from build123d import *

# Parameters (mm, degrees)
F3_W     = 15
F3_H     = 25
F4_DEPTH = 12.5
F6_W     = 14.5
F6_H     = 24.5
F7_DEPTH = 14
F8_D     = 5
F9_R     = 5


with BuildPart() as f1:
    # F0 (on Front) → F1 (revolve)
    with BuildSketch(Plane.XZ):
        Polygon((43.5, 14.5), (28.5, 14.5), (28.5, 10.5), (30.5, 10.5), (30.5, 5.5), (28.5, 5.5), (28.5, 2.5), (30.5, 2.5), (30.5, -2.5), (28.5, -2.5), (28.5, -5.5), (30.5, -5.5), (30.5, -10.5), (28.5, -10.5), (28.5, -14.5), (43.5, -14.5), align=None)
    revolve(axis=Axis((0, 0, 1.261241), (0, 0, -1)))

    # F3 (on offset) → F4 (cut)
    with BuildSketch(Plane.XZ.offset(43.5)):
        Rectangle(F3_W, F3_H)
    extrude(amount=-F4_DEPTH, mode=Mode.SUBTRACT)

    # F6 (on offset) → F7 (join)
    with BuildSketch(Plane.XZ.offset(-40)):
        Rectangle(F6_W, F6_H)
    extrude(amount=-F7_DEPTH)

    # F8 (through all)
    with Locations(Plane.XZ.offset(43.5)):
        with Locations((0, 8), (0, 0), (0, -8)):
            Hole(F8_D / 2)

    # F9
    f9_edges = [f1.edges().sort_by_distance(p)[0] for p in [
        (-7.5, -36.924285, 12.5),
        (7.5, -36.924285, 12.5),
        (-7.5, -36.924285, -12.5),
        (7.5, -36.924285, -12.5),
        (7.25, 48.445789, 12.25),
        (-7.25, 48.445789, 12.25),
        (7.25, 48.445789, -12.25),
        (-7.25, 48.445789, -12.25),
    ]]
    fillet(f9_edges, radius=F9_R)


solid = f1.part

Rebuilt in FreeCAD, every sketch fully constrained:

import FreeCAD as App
import Part
import Sketcher

V = App.Vector


def edges_at(feature, points):
    """Names of the edges that pass closest to the given points."""
    edges = feature.Shape.Edges
    near = lambda p: min(range(len(edges)), key=lambda i: edges[i].distToShape(Part.Vertex(*p))[0])
    return sorted({f"Edge{near(p) + 1}" for p in points})

doc = App.newDocument("Part")
body = doc.addObject("PartDesign::Body", "Body")

# Sketch on XZ plane
sketch1 = doc.addObject("Sketcher::SketchObject", "Sketch")
body.addObject(sketch1)
sketch1.AttachmentSupport = (doc.XZ_Plane, [""])
sketch1.MapMode = "FlatFace"
sketch1.addGeometry([
    Part.LineSegment(V(43.5, 14.5, 0), V(28.5, 14.5, 0)),  # 0
    Part.LineSegment(V(28.5, 14.5, 0), V(28.5, 10.5, 0)),  # 1
    Part.LineSegment(V(28.5, 10.5, 0), V(30.5, 10.5, 0)),  # 2
    Part.LineSegment(V(30.5, 10.5, 0), V(30.5, 5.5, 0)),  # 3
    Part.LineSegment(V(30.5, 5.5, 0), V(28.5, 5.5, 0)),  # 4
    Part.LineSegment(V(28.5, 5.5, 0), V(28.5, 2.5, 0)),  # 5
    Part.LineSegment(V(28.5, 2.5, 0), V(30.5, 2.5, 0)),  # 6
    Part.LineSegment(V(30.5, 2.5, 0), V(30.5, -2.5, 0)),  # 7
    Part.LineSegment(V(30.5, -2.5, 0), V(28.5, -2.5, 0)),  # 8
    Part.LineSegment(V(28.5, -2.5, 0), V(28.5, -5.5, 0)),  # 9
    Part.LineSegment(V(28.5, -5.5, 0), V(30.5, -5.5, 0)),  # 10
    Part.LineSegment(V(30.5, -5.5, 0), V(30.5, -10.5, 0)),  # 11
    Part.LineSegment(V(30.5, -10.5, 0), V(28.5, -10.5, 0)),  # 12
    Part.LineSegment(V(28.5, -10.5, 0), V(28.5, -14.5, 0)),  # 13
    Part.LineSegment(V(28.5, -14.5, 0), V(43.5, -14.5, 0)),  # 14
    Part.LineSegment(V(43.5, -14.5, 0), V(43.5, 14.5, 0)),  # 15
], False)
sketch1.addConstraint([
    Sketcher.Constraint("Coincident", 0, 2, 1, 1),
    Sketcher.Constraint("Coincident", 1, 2, 2, 1),
    Sketcher.Constraint("Coincident", 2, 2, 3, 1),
    Sketcher.Constraint("Coincident", 3, 2, 4, 1),
    Sketcher.Constraint("Coincident", 4, 2, 5, 1),
    Sketcher.Constraint("Coincident", 5, 2, 6, 1),
    Sketcher.Constraint("Coincident", 6, 2, 7, 1),
    Sketcher.Constraint("Coincident", 7, 2, 8, 1),
    Sketcher.Constraint("Coincident", 8, 2, 9, 1),
    Sketcher.Constraint("Coincident", 9, 2, 10, 1),
    Sketcher.Constraint("Coincident", 10, 2, 11, 1),
    Sketcher.Constraint("Coincident", 11, 2, 12, 1),
    Sketcher.Constraint("Coincident", 12, 2, 13, 1),
    Sketcher.Constraint("Coincident", 13, 2, 14, 1),
    Sketcher.Constraint("Coincident", 14, 2, 15, 1),
    Sketcher.Constraint("Coincident", 15, 2, 0, 1),
    Sketcher.Constraint("Horizontal", 0),
    Sketcher.Constraint("Vertical", 1),
    Sketcher.Constraint("Horizontal", 2),
    Sketcher.Constraint("Vertical", 3),
    Sketcher.Constraint("Horizontal", 4),
    Sketcher.Constraint("Vertical", 5),
    Sketcher.Constraint("Horizontal", 6),
    Sketcher.Constraint("Vertical", 7),
    Sketcher.Constraint("Horizontal", 8),
    Sketcher.Constraint("Vertical", 9),
    Sketcher.Constraint("Horizontal", 10),
    Sketcher.Constraint("Vertical", 11),
    Sketcher.Constraint("Horizontal", 12),
    Sketcher.Constraint("Vertical", 13),
    Sketcher.Constraint("Horizontal", 14),
    Sketcher.Constraint("Vertical", 15),
    Sketcher.Constraint("Symmetric", 5, 2, 8, 2, -1),
    Sketcher.Constraint("Symmetric", 3, 2, 10, 2, -1),
    Sketcher.Constraint("Symmetric", 1, 2, 12, 2, -1),
    Sketcher.Constraint("Vertical", 1, 2, 4, 2),
    Sketcher.Constraint("Vertical", 3, 2, 6, 2),
    Sketcher.Constraint("Equal", 3, 7),
    Sketcher.Constraint("Equal", 1, 13),
    Sketcher.Constraint("DistanceX", 0, 2, 0, 1, 15.0),
    Sketcher.Constraint("DistanceX", 2, 1, 2, 2, 2.0),
    Sketcher.Constraint("DistanceY", 1, 2, 1, 1, 4.0),
    Sketcher.Constraint("DistanceY", 3, 2, 3, 1, 5.0),
    Sketcher.Constraint("DistanceY", 5, 2, 5, 1, 3.0),
    Sketcher.Constraint("DistanceX", -1, 1, 0, 2, 28.5),
])
revolution = doc.addObject("PartDesign::Revolution", "Revolution")
body.addObject(revolution)
revolution.Profile = sketch1
revolution.ReferenceAxis = (sketch1, ["V_Axis"])
revolution.Angle = 360

# Sketch on XZ plane
sketch2 = doc.addObject("Sketcher::SketchObject", "Sketch001")
body.addObject(sketch2)
sketch2.AttachmentSupport = (doc.XZ_Plane, [""])
sketch2.MapMode = "FlatFace"
sketch2.AttachmentOffset = App.Placement(V(0, 0, 43.5), App.Rotation())
sketch2.addGeometry([
    Part.LineSegment(V(-8, 12, 0), V(-8, -12, 0)),
    Part.LineSegment(V(-8, -12, 0), V(8, -12, 0)),
    Part.LineSegment(V(8, -12, 0), V(8, 12, 0)),
    Part.LineSegment(V(8, 12, 0), V(-8, 12, 0)),
], False)
sketch2.addConstraint([
    Sketcher.Constraint("Coincident", 0, 2, 1, 1),
    Sketcher.Constraint("Coincident", 1, 2, 2, 1),
    Sketcher.Constraint("Coincident", 2, 2, 3, 1),
    Sketcher.Constraint("Coincident", 3, 2, 0, 1),
    Sketcher.Constraint("Vertical", 0),
    Sketcher.Constraint("Horizontal", 1),
    Sketcher.Constraint("Vertical", 2),
    Sketcher.Constraint("Horizontal", 3),
    Sketcher.Constraint("Symmetric", 0, 2, 2, 2, -1, 1),
    Sketcher.Constraint("DistanceX", 1, 1, 1, 2, 15.0),
    Sketcher.Constraint("DistanceY", 0, 2, 0, 1, 25.0),
])
pocket1 = doc.addObject("PartDesign::Pocket", "Pocket")
body.addObject(pocket1)
pocket1.Profile = sketch2
pocket1.Length = 12.5

# Sketch on XZ plane
sketch3 = doc.addObject("Sketcher::SketchObject", "Sketch002")
body.addObject(sketch3)
sketch3.AttachmentSupport = (doc.XZ_Plane, [""])
sketch3.MapMode = "FlatFace"
sketch3.AttachmentOffset = App.Placement(V(0, 0, -40), App.Rotation())
sketch3.addGeometry([
    Part.LineSegment(V(-7, 12, 0), V(-7, -12, 0)),
    Part.LineSegment(V(-7, -12, 0), V(7, -12, 0)),
    Part.LineSegment(V(7, -12, 0), V(7, 12, 0)),
    Part.LineSegment(V(7, 12, 0), V(-7, 12, 0)),
], False)
sketch3.addConstraint([
    Sketcher.Constraint("Coincident", 0, 2, 1, 1),
    Sketcher.Constraint("Coincident", 1, 2, 2, 1),
    Sketcher.Constraint("Coincident", 2, 2, 3, 1),
    Sketcher.Constraint("Coincident", 3, 2, 0, 1),
    Sketcher.Constraint("Vertical", 0),
    Sketcher.Constraint("Horizontal", 1),
    Sketcher.Constraint("Vertical", 2),
    Sketcher.Constraint("Horizontal", 3),
    Sketcher.Constraint("Symmetric", 0, 2, 2, 2, -1, 1),
    Sketcher.Constraint("DistanceX", 1, 1, 1, 2, 14.5),
    Sketcher.Constraint("DistanceY", 0, 2, 0, 1, 24.5),
])
pad1 = doc.addObject("PartDesign::Pad", "Pad")
body.addObject(pad1)
pad1.Profile = sketch3
pad1.Length = 14
pad1.Reversed = True

# Sketch on XZ plane
sketch4 = doc.addObject("Sketcher::SketchObject", "Sketch003")
body.addObject(sketch4)
sketch4.AttachmentSupport = (doc.XZ_Plane, [""])
sketch4.MapMode = "FlatFace"
sketch4.AttachmentOffset = App.Placement(V(0, 0, 43.5), App.Rotation())
sketch4.addGeometry([
    Part.Circle(V(0, 8, 0), V(0, 0, 1), 2.5),
    Part.Circle(V(0, 0, 0), V(0, 0, 1), 2.5),
    Part.Circle(V(0, -8, 0), V(0, 0, 1), 2.5),
], False)
sketch4.addConstraint([
    Sketcher.Constraint("Coincident", 1, 3, -1, 1),
    Sketcher.Constraint("Equal", 0, 1),
    Sketcher.Constraint("Equal", 1, 2),
    Sketcher.Constraint("Symmetric", 0, 3, 2, 3, -1, 1),
    Sketcher.Constraint("PointOnObject", 0, 3, -2),
    Sketcher.Constraint("Diameter", 0, 5.0),
    Sketcher.Constraint("DistanceY", -1, 1, 0, 3, 8.0),
])
doc.recompute()
hole = doc.addObject("PartDesign::Hole", "Hole")
body.addObject(hole)
hole.Profile = sketch4
hole.ThreadType = "None"
hole.Diameter = 5
hole.DepthType = "ThroughAll"
doc.recompute()

fillet = doc.addObject("PartDesign::Fillet", "Fillet")
body.addObject(fillet)
fillet.Base = (hole, edges_at(hole, [
    (-7.5, -36.924, 12.5),
    (7.5, -36.924, 12.5),
    (-7.5, -36.924, -12.5),
    (7.5, -36.924, -12.5),
    (7.25, 48.446, 12.25),
    (-7.25, 48.446, 12.25),
    (7.25, 48.446, -12.25),
    (-7.25, 48.446, -12.25),
]))
fillet.Radius = 5

doc.recompute()
